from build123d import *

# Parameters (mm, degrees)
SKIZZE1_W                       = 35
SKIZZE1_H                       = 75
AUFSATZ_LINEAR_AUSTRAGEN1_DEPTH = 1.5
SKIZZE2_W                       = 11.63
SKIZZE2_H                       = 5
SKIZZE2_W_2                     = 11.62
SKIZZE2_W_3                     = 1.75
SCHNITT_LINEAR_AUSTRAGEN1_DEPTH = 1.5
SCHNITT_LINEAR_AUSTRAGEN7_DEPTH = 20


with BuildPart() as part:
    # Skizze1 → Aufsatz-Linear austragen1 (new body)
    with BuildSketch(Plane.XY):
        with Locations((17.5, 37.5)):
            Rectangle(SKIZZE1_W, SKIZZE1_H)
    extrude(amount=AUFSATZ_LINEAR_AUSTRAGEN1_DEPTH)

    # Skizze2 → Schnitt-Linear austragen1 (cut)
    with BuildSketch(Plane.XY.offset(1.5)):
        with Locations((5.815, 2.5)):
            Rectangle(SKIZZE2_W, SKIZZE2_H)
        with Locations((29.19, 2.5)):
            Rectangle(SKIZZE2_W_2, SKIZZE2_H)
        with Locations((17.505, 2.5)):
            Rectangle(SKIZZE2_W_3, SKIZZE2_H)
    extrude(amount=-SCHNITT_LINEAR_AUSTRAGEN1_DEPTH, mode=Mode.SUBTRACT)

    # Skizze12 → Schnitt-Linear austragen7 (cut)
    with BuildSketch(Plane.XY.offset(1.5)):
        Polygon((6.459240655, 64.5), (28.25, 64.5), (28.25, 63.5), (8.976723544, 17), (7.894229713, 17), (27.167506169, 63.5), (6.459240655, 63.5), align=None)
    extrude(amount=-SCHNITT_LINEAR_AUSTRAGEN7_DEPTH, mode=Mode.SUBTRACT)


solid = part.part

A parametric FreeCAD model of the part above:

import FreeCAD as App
import Part
import Sketcher
from FreeCAD import Vector


def add_polygon(sketch, points):
    """Adds a closed chain of lines whose ends are joined by coincident constraints."""
    first, n = sketch.GeometryCount, len(points)
    for a, b in zip(points, points[1:] + points[:1]):
        sketch.addGeometry(Part.LineSegment(App.Vector(*a, 0), App.Vector(*b, 0)), False)
    for i in range(n):
        sketch.addConstraint(Sketcher.Constraint("Coincident", first + i, 2, first + (i + 1) % n, 1))

doc = App.newDocument("Part")
body = doc.addObject("PartDesign::Body", "Body")

sketch1 = doc.addObject("Sketcher::SketchObject", "Sketch")
body.addObject(sketch1)
sketch1.AttachmentSupport = (doc.XY_Plane, [""])
sketch1.MapMode = "FlatFace"
add_polygon(sketch1, [(0, 75), (0, 0), (35, 0), (35, 75)])
sketch1.addConstraint(Sketcher.Constraint("Vertical", 0))
sketch1.addConstraint(Sketcher.Constraint("Horizontal", 1))
sketch1.addConstraint(Sketcher.Constraint("Vertical", 2))
sketch1.addConstraint(Sketcher.Constraint("Horizontal", 3))
sketch1.addConstraint(Sketcher.Constraint("Coincident", 0, 2, -1, 1))
sketch1.addConstraint(Sketcher.Constraint("DistanceX", 1, 1, 1, 2, 35.0))
sketch1.addConstraint(Sketcher.Constraint("DistanceY", 0, 2, 0, 1, 75.0))
pad1 = doc.addObject("PartDesign::Pad", "Pad")
body.addObject(pad1)
pad1.Profile = sketch1
pad1.Length = 1.5

sketch2 = doc.addObject("Sketcher::SketchObject", "Sketch001")
body.addObject(sketch2)
sketch2.AttachmentSupport = (doc.XY_Plane, [""])
sketch2.MapMode = "FlatFace"
sketch2.AttachmentOffset = App.Placement(Vector(0, 0, 1.5), App.Rotation())
add_polygon(sketch2, [(0, 5), (0, 0), (11.6, 0), (11.6, 5)])
add_polygon(sketch2, [(23.4, 5), (23.4, 0), (35, 0), (35, 5)])
add_polygon(sketch2, [(16.6, 5), (16.6, 0), (18.4, 0), (18.4, 5)])
sketch2.addConstraint(Sketcher.Constraint("Vertical", 0))
sketch2.addConstraint(Sketcher.Constraint("Horizontal", 1))
sketch2.addConstraint(Sketcher.Constraint("Vertical", 2))
sketch2.addConstraint(Sketcher.Constraint("Horizontal", 3))
sketch2.addConstraint(Sketcher.Constraint("Vertical", 4))
sketch2.addConstraint(Sketcher.Constraint("Horizontal", 5))
sketch2.addConstraint(Sketcher.Constraint("Vertical", 6))
sketch2.addConstraint(Sketcher.Constraint("Horizontal", 7))
sketch2.addConstraint(Sketcher.Constraint("Vertical", 8))
sketch2.addConstraint(Sketcher.Constraint("Horizontal", 9))
sketch2.addConstraint(Sketcher.Constraint("Vertical", 10))
sketch2.addConstraint(Sketcher.Constraint("Horizontal", 11))
sketch2.addConstraint(Sketcher.Constraint("Coincident", 0, 2, -1, 1))
sketch2.addConstraint(Sketcher.Constraint("PointOnObject", 4, 2, -1))
sketch2.addConstraint(Sketcher.Constraint("PointOnObject", 8, 2, -1))
sketch2.addConstraint(Sketcher.Constraint("Horizontal", 3, 2, 6, 2))
sketch2.addConstraint(Sketcher.Constraint("Horizontal", 7, 2, 10, 2))
sketch2.addConstraint(Sketcher.Constraint("DistanceY", 0, 2, 0, 1, 5.0))
sketch2.addConstraint(Sketcher.Constraint("DistanceX", -1, 1, 5, 2, 35.0))
sketch2.addConstraint(Sketcher.Constraint("DistanceX", 1, 2, 8, 2, 5.0))
sketch2.addConstraint(Sketcher.Constraint("DistanceX", 9, 2, 4, 2, 5.0))
sketch2.addConstraint(Sketcher.Constraint("DistanceX", 1, 1, 1, 2, 11.63))
sketch2.addConstraint(Sketcher.Constraint("DistanceX", 5, 1, 5, 2, 11.62))
pocket1 = doc.addObject("PartDesign::Pocket", "Pocket")
body.addObject(pocket1)
pocket1.Profile = sketch2
pocket1.Length = 1.5

sketch3 = doc.addObject("Sketcher::SketchObject", "Sketch002")
body.addObject(sketch3)
sketch3.AttachmentSupport = (doc.XY_Plane, [""])
sketch3.MapMode = "FlatFace"
sketch3.AttachmentOffset = App.Placement(Vector(0, 0, 1.5), App.Rotation())
add_polygon(sketch3, [(28.2, 64.5), (6.5, 64.5), (6.5, 63.5), (27.2, 63.5), (7.9, 17), (9, 17), (28.2, 63.5)])
sketch3.addConstraint(Sketcher.Constraint("Horizontal", 0))
sketch3.addConstraint(Sketcher.Constraint("Vertical", 1))
sketch3.addConstraint(Sketcher.Constraint("Horizontal", 2))
sketch3.addConstraint(Sketcher.Constraint("Horizontal", 4))
sketch3.addConstraint(Sketcher.Constraint("Vertical", 6))
sketch3.addConstraint(Sketcher.Constraint("Parallel", 3, 5))
sketch3.addConstraint(Sketcher.Constraint("Horizontal", 2, 2, 5, 2))
sketch3.addConstraint(Sketcher.Constraint("DistanceY", 1, 2, 1, 1, 1.0))
sketch3.addConstraint(Sketcher.Constraint("DistanceY", -1, 1, 3, 2, 17.0))
sketch3.addConstraint(Sketcher.Constraint("DistanceY", -1, 1, 0, 2, 64.5))
sketch3.addConstraint(Sketcher.Constraint("DistanceX", -1, 1, 5, 2, 28.25))
sketch3.addConstraint(Sketcher.Constraint("DistanceX", 0, 2, 0, 1, 21.790759))
sketch3.addConstraint(Sketcher.Constraint("DistanceX", 2, 1, 2, 2, 20.708266))
sketch3.addConstraint(Sketcher.Constraint("DistanceX", -1, 1, 3, 2, 7.89423))
pocket2 = doc.addObject("PartDesign::Pocket", "Pocket001")
body.addObject(pocket2)
pocket2.Profile = sketch3
pocket2.Length = 20

doc.recompute()
